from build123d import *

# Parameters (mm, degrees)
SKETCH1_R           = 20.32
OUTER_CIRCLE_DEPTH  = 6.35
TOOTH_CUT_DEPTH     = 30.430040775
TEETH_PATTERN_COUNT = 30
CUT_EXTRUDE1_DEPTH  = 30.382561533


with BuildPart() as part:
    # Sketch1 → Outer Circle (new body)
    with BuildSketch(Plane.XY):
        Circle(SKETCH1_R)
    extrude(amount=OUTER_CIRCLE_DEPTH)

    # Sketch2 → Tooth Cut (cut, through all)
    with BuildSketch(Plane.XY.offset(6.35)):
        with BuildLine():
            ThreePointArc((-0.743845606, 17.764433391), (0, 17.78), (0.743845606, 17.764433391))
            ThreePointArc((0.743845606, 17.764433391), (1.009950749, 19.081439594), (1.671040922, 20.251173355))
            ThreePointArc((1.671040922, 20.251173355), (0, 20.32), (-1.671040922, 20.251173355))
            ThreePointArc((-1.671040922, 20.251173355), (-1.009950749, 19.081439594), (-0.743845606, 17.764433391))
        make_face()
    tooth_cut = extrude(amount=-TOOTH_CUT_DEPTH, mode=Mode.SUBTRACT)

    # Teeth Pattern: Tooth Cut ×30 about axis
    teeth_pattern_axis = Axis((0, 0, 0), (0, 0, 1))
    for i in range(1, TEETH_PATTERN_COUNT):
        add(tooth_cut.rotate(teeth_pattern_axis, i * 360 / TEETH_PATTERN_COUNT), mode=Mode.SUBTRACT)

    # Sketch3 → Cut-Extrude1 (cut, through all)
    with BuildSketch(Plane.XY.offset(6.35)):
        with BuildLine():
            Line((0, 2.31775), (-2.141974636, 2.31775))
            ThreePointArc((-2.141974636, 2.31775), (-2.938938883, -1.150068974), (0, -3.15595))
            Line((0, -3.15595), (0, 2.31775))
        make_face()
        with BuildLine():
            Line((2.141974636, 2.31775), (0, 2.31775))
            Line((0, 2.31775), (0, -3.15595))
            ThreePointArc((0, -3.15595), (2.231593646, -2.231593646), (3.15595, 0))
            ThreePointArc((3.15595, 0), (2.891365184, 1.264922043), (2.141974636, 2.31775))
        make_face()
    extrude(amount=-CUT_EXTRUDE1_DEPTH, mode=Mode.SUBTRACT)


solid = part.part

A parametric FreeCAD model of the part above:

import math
import FreeCAD as App
import Part
import Sketcher
Q = App.Units.Quantity

doc = App.newDocument("Part")
params = doc.addObject("Spreadsheet::Sheet", "Params")
for row, (alias, value) in enumerate([
    ("sketch1_diameter", "1.6 in"),
    ("pad1_length", "0.25 in"),
    ("sketch2_radius", "0.7 in"),
    ("sketch2_radius2", "0.8 in"),
], start=1):
    params.set(f"A{row}", alias)
    params.set(f"B{row}", "=" + value)
    params.setAlias(f"B{row}", alias)

body = doc.addObject("PartDesign::Body", "Body")

# Sketch on XY plane
sketch1 = doc.addObject("Sketcher::SketchObject", "Sketch")
body.addObject(sketch1)
sketch1.AttachmentSupport = (doc.XY_Plane, [""])
sketch1.MapMode = "FlatFace"
sketch1.addGeometry(Part.Circle(App.Vector(0, 0, 0), App.Vector(0, 0, 1), 20.32), False)
sketch1.addConstraint(Sketcher.Constraint("Coincident", 0, 3, -1, 1))
sketch1.addConstraint(Sketcher.Constraint("Diameter", 0, Q("1.6 in")))
sketch1.setExpression("Constraints[1]", "Params.sketch1_diameter")
pad1 = doc.addObject("PartDesign::Pad", "Pad")
body.addObject(pad1)
pad1.Profile = sketch1
pad1.setExpression("Length", "Params.pad1_length")

# Sketch on XY plane
sketch2 = doc.addObject("Sketcher::SketchObject", "Sketch001")
body.addObject(sketch2)
sketch2.AttachmentSupport = (doc.XY_Plane, [""])
sketch2.MapMode = "FlatFace"
sketch2.AttachmentOffset = App.Placement(App.Vector(0, 0, 0.25 * 25.4), App.Rotation())
sketch2.addGeometry(Part.ArcOfCircle(Part.Circle(App.Vector(0, 0, 0), App.Vector(0, 0, 1), 17.78), math.radians(87.602269), math.radians(92.397731)), False)
sketch2.addGeometry(Part.ArcOfCircle(Part.Circle(App.Vector(5.022691, 17.585266, 0), App.Vector(0, 0, 1), 4.282595), math.radians(141.501211), math.radians(177.602269)), False)
sketch2.addGeometry(Part.ArcOfCircle(Part.Circle(App.Vector(0, 0, 0), App.Vector(0, 0, 1), 20.32), math.radians(85.282882), math.radians(94.717118)), False)
sketch2.addGeometry(Part.ArcOfCircle(Part.Circle(App.Vector(-5.022691, 17.585266, 0), App.Vector(0, 0, 1), 4.282595), math.radians(2.397731), math.radians(38.498789)), False)
sketch2.addConstraint(Sketcher.Constraint("Coincident", 0, 1, 1, 2))
sketch2.addConstraint(Sketcher.Constraint("Coincident", 1, 1, 2, 1))
sketch2.addConstraint(Sketcher.Constraint("Coincident", 2, 2, 3, 2))
sketch2.addConstraint(Sketcher.Constraint("Coincident", 3, 1, 0, 2))
sketch2.addConstraint(Sketcher.Constraint("Coincident", 0, 3, -1, 1))
sketch2.addConstraint(Sketcher.Constraint("Coincident", 2, 3, -1, 1))
sketch2.addConstraint(Sketcher.Constraint("Equal", 1, 3))
sketch2.addConstraint(Sketcher.Constraint("Symmetric", 1, 3, 3, 3, -2))
sketch2.addConstraint(Sketcher.Constraint("Radius", 0, Q("0.7 in")))
sketch2.addConstraint(Sketcher.Constraint("Radius", 2, Q("0.8 in")))
sketch2.addConstraint(Sketcher.Constraint("Radius", 1, 4.282595))
sketch2.addConstraint(Sketcher.Constraint("DistanceX", -1, 1, 1, 3, 5.022691))
sketch2.addConstraint(Sketcher.Constraint("DistanceX", -1, 1, 1, 1, 1.671041))
sketch2.setExpression("Constraints[8]", "Params.sketch2_radius")
sketch2.setExpression("Constraints[9]", "Params.sketch2_radius2")
pocket1 = doc.addObject("PartDesign::Pocket", "Pocket")
body.addObject(pocket1)
pocket1.Profile = sketch2
pocket1.Type = "ThroughAll"
doc.recompute()

polarpattern = doc.addObject("PartDesign::PolarPattern", "PolarPattern")
body.addObject(polarpattern)
polarpattern.Originals = [pocket1]
polarpattern.Axis = (doc.Z_Axis, [""])
polarpattern.Angle = 360
polarpattern.Occurrences = 30
body.Tip = polarpattern

# Sketch on XY plane
sketch3 = doc.addObject("Sketcher::SketchObject", "Sketch002")
body.addObject(sketch3)
sketch3.AttachmentSupport = (doc.XY_Plane, [""])
sketch3.MapMode = "FlatFace"
sketch3.AttachmentOffset = App.Placement(App.Vector(0, 0, 0.25 * 25.4), App.Rotation())
sketch3.addGeometry(Part.ArcOfCircle(Part.Circle(App.Vector(0, 0, 0), App.Vector(0, 0, 1), 3.15595), math.radians(132.742915), math.radians(270)), False)
sketch3.addGeometry(Part.ArcOfCircle(Part.Circle(App.Vector(0, 0, 0), App.Vector(0, 0, 1), 3.15595), math.radians(-90), math.radians(0)), False)
sketch3.addGeometry(Part.ArcOfCircle(Part.Circle(App.Vector(0, 0, 0), App.Vector(0, 0, 1), 3.15595), math.radians(0), math.radians(47.257085)), False)
sketch3.addGeometry(Part.LineSegment(App.Vector(2.141975, 2.31775, 0), App.Vector(-2.141975, 2.31775, 0)), False)
sketch3.addConstraint(Sketcher.Constraint("Tangent", 0, 2, 1, 1))
sketch3.addConstraint(Sketcher.Constraint("Tangent", 1, 2, 2, 1))
sketch3.addConstraint(Sketcher.Constraint("Coincident", 2, 2, 3, 1))
sketch3.addConstraint(Sketcher.Constraint("Coincident", 3, 2, 0, 1))
sketch3.addConstraint(Sketcher.Constraint("Horizontal", 3))
sketch3.addConstraint(Sketcher.Constraint("Coincident", 0, 3, -1, 1))
sketch3.addConstraint(Sketcher.Constraint("Coincident", 2, 3, -1, 1))
sketch3.addConstraint(Sketcher.Constraint("PointOnObject", 0, 2, -2))
sketch3.addConstraint(Sketcher.Constraint("PointOnObject", 1, 2, -1))
sketch3.addConstraint(Sketcher.Constraint("Radius", 0, 3.15595))
sketch3.addConstraint(Sketcher.Constraint("DistanceY", 0, 2, 2, 2, Q("0.2155 in")))
pocket2 = doc.addObject("PartDesign::Pocket", "Pocket001")
body.addObject(pocket2)
pocket2.Profile = sketch3
pocket2.Type = "ThroughAll"

doc.recompute()
